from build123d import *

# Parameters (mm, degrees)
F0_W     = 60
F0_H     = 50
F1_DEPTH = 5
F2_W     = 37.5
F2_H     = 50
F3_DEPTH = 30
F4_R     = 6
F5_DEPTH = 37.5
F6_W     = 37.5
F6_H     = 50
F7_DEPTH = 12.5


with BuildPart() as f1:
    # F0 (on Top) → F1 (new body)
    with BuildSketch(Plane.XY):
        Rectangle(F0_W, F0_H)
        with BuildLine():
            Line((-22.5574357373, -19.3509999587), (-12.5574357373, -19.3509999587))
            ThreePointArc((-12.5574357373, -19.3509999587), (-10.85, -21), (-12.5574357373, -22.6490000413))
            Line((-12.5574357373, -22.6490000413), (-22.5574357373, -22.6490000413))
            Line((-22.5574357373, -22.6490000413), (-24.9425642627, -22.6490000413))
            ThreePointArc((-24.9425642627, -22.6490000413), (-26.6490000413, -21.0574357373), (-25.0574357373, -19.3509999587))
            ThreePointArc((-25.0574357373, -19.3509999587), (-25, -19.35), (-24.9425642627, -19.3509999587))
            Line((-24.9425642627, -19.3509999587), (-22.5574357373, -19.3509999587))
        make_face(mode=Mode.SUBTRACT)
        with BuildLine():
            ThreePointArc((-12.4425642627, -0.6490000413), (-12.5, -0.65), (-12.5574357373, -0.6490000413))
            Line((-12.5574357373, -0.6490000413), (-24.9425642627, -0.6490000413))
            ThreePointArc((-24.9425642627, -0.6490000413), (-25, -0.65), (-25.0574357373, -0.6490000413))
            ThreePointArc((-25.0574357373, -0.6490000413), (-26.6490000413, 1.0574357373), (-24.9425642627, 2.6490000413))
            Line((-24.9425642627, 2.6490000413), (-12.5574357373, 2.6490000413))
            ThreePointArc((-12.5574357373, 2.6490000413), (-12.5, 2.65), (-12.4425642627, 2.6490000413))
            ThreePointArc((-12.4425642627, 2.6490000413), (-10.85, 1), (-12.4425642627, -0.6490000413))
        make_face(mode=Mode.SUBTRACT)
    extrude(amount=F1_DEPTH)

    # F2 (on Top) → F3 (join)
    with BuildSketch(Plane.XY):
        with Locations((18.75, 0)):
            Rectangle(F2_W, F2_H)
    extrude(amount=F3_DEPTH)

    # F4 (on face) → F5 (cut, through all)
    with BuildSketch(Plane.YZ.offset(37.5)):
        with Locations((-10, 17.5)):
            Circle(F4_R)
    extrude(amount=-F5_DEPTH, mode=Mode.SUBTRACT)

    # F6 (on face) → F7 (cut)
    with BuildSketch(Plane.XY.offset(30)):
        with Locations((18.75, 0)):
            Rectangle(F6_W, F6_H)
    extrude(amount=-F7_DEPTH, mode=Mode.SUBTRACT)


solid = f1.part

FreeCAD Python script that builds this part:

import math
import FreeCAD as App
import Part
import Sketcher

V = App.Vector
Q = App.Units.Quantity

doc = App.newDocument("Part")
body = doc.addObject("PartDesign::Body", "Body")

# Sketch on XY plane
sketch1 = body.newObject("Sketcher::SketchObject", "Sketch")
sketch1.AttachmentSupport = (doc.getObject("XY_Plane"), [""])
sketch1.MapMode = "FlatFace"
sketch1.addGeometry(Part.LineSegment(V(-30, 25, 0), V(-30, -25, 0)), False)
sketch1.addGeometry(Part.LineSegment(V(-30, -25, 0), V(30, -25, 0)), False)
sketch1.addGeometry(Part.LineSegment(V(30, -25, 0), V(30, 25, 0)), False)
sketch1.addGeometry(Part.LineSegment(V(30, 25, 0), V(-30, 25, 0)), False)
sketch1.addGeometry(Part.LineSegment(V(-24.94, -19.35, 0), V(-12.56, -19.35, 0)), False)
sketch1.addGeometry(Part.ArcOfCircle(Part.Circle(V(-12.5, -21, 0), V(0, 0, 1), 1.65), math.radians(-92), math.radians(92)), False)
sketch1.addGeometry(Part.LineSegment(V(-12.56, -22.65, 0), V(-24.94, -22.65, 0)), False)
sketch1.addGeometry(Part.ArcOfCircle(Part.Circle(V(-25, -21, 0), V(0, 0, 1), 1.65), math.radians(92), math.radians(272)), False)
sketch1.addGeometry(Part.ArcOfCircle(Part.Circle(V(-25, -21, 0), V(0, 0, 1), 1.65), math.radians(88.01), math.radians(91.99)), False)
sketch1.addGeometry(Part.ArcOfCircle(Part.Circle(V(-12.5, 1, 0), V(0, 0, 1), 1.65), math.radians(-88), math.radians(88)), False)
sketch1.addGeometry(Part.ArcOfCircle(Part.Circle(V(-12.5, 1, 0), V(0, 0, 1), 1.65), math.radians(-91.99), math.radians(-88.01)), False)
sketch1.addGeometry(Part.LineSegment(V(-12.56, -0.65, 0), V(-24.94, -0.65, 0)), False)
sketch1.addGeometry(Part.ArcOfCircle(Part.Circle(V(-25, 1, 0), V(0, 0, 1), 1.65), math.radians(-91.99), math.radians(-88.01)), False)
sketch1.addGeometry(Part.ArcOfCircle(Part.Circle(V(-25, 1, 0), V(0, 0, 1), 1.65), math.radians(88), math.radians(268)), False)
sketch1.addGeometry(Part.LineSegment(V(-24.94, 2.65, 0), V(-12.56, 2.65, 0)), False)
sketch1.addGeometry(Part.ArcOfCircle(Part.Circle(V(-12.5, 1, 0), V(0, 0, 1), 1.65), math.radians(88.01), math.radians(91.99)), False)
sketch1.addConstraint(Sketcher.Constraint("Coincident", 0, 2, 1, 1))
sketch1.addConstraint(Sketcher.Constraint("Coincident", 1, 2, 2, 1))
sketch1.addConstraint(Sketcher.Constraint("Coincident", 2, 2, 3, 1))
sketch1.addConstraint(Sketcher.Constraint("Coincident", 3, 2, 0, 1))
sketch1.addConstraint(Sketcher.Constraint("Coincident", 4, 2, 5, 2))
sketch1.addConstraint(Sketcher.Constraint("Coincident", 5, 1, 6, 1))
sketch1.addConstraint(Sketcher.Constraint("Coincident", 6, 2, 7, 2))
sketch1.addConstraint(Sketcher.Constraint("Tangent", 7, 1, 8, 2))
sketch1.addConstraint(Sketcher.Constraint("Coincident", 8, 1, 4, 1))
sketch1.addConstraint(Sketcher.Constraint("Tangent", 9, 1, 10, 2))
sketch1.addConstraint(Sketcher.Constraint("Coincident", 10, 1, 11, 1))
sketch1.addConstraint(Sketcher.Constraint("Coincident", 11, 2, 12, 2))
sketch1.addConstraint(Sketcher.Constraint("Tangent", 12, 1, 13, 2))
sketch1.addConstraint(Sketcher.Constraint("Coincident", 13, 1, 14, 1))
sketch1.addConstraint(Sketcher.Constraint("Coincident", 14, 2, 15, 2))
sketch1.addConstraint(Sketcher.Constraint("Tangent", 15, 1, 9, 2))
sketch1.addConstraint(Sketcher.Constraint("Vertical", 0))
sketch1.addConstraint(Sketcher.Constraint("Horizontal", 1))
sketch1.addConstraint(Sketcher.Constraint("Vertical", 2))
sketch1.addConstraint(Sketcher.Constraint("Horizontal", 3))
sketch1.addConstraint(Sketcher.Constraint("Horizontal", 4))
sketch1.addConstraint(Sketcher.Constraint("Horizontal", 6))
sketch1.addConstraint(Sketcher.Constraint("Horizontal", 11))
sketch1.addConstraint(Sketcher.Constraint("Horizontal", 14))
sketch1.addConstraint(Sketcher.Constraint("Equal", 5, 7))
sketch1.addConstraint(Sketcher.Constraint("Equal", 7, 8))
sketch1.addConstraint(Sketcher.Constraint("Equal", 8, 9))
sketch1.addConstraint(Sketcher.Constraint("Equal", 9, 10))
sketch1.addConstraint(Sketcher.Constraint("Equal", 10, 12))
sketch1.addConstraint(Sketcher.Constraint("Equal", 12, 13))
sketch1.addConstraint(Sketcher.Constraint("Equal", 13, 15))
sketch1.addConstraint(Sketcher.Constraint("Symmetric", 0, 2, 2, 2, -1, 1))
sketch1.addConstraint(Sketcher.Constraint("Horizontal", 5, 3, 7, 3))
sketch1.addConstraint(Sketcher.Constraint("Horizontal", 10, 3, 12, 3))
sketch1.addConstraint(Sketcher.Constraint("Horizontal", 4, 2, 7, 1))
sketch1.addConstraint(Sketcher.Constraint("Horizontal", 9, 1, 10, 1))
sketch1.addConstraint(Sketcher.Constraint("Horizontal", 11, 2, 12, 1))
sketch1.addConstraint(Sketcher.Constraint("Horizontal", 14, 2, 15, 1))
sketch1.addConstraint(Sketcher.Constraint("Vertical", 5, 3, 9, 3))
sketch1.addConstraint(Sketcher.Constraint("Vertical", 8, 3, 12, 3))
sketch1.addConstraint(Sketcher.Constraint("Vertical", 4, 2, 5, 1))
sketch1.addConstraint(Sketcher.Constraint("Vertical", 5, 1, 10, 1))
sketch1.addConstraint(Sketcher.Constraint("Vertical", 11, 2, 13, 1))
sketch1.addConstraint(Sketcher.Constraint("DistanceX", 1, 1, 1, 2, Q("60 mm")))
sketch1.addConstraint(Sketcher.Constraint("DistanceY", 0, 2, 0, 1, Q("50 mm")))
sketch1.addConstraint(Sketcher.Constraint("Radius", 5, Q("1.65 mm")))
sketch1.addConstraint(Sketcher.Constraint("DistanceY", 5, 3, -1, 1, Q("21 mm")))
sketch1.addConstraint(Sketcher.Constraint("DistanceX", 7, 3, -1, 1, Q("25 mm")))
sketch1.addConstraint(Sketcher.Constraint("DistanceY", -1, 1, 9, 3, Q("1 mm")))
sketch1.addConstraint(Sketcher.Constraint("DistanceX", 5, 3, -1, 1, Q("12.5 mm")))
sketch1.addConstraint(Sketcher.Constraint("DistanceY", 4, 2, -1, 1, Q("19.351 mm")))
pad1 = body.newObject("PartDesign::Pad", "Pad")
pad1.Profile = sketch1
pad1.Length = 5

# Sketch on XY plane
sketch2 = body.newObject("Sketcher::SketchObject", "Sketch001")
sketch2.AttachmentSupport = (doc.getObject("XY_Plane"), [""])
sketch2.MapMode = "FlatFace"
sketch2.addGeometry(Part.LineSegment(V(0, 25, 0), V(0, -25, 0)), False)
sketch2.addGeometry(Part.LineSegment(V(0, -25, 0), V(38, -25, 0)), False)
sketch2.addGeometry(Part.LineSegment(V(38, -25, 0), V(38, 25, 0)), False)
sketch2.addGeometry(Part.LineSegment(V(38, 25, 0), V(0, 25, 0)), False)
sketch2.addConstraint(Sketcher.Constraint("Coincident", 0, 2, 1, 1))
sketch2.addConstraint(Sketcher.Constraint("Coincident", 1, 2, 2, 1))
sketch2.addConstraint(Sketcher.Constraint("Coincident", 2, 2, 3, 1))
sketch2.addConstraint(Sketcher.Constraint("Coincident", 3, 2, 0, 1))
sketch2.addConstraint(Sketcher.Constraint("Vertical", 0))
sketch2.addConstraint(Sketcher.Constraint("Horizontal", 1))
sketch2.addConstraint(Sketcher.Constraint("Vertical", 2))
sketch2.addConstraint(Sketcher.Constraint("Horizontal", 3))
sketch2.addConstraint(Sketcher.Constraint("Symmetric", 0, 2, 3, 2, -1, 1))
sketch2.addConstraint(Sketcher.Constraint("DistanceY", 0, 2, 0, 1, Q("50 mm")))
sketch2.addConstraint(Sketcher.Constraint("DistanceX", 1, 1, 1, 2, Q("37.5 mm")))
pad2 = body.newObject("PartDesign::Pad", "Pad001")
pad2.Profile = sketch2
pad2.Length = 30

# Sketch on YZ plane
sketch3 = body.newObject("Sketcher::SketchObject", "Sketch002")
sketch3.AttachmentSupport = (doc.getObject("YZ_Plane"), [""])
sketch3.MapMode = "FlatFace"
sketch3.AttachmentOffset = App.Placement(V(0, 0, 37.5), App.Rotation())
sketch3.addGeometry(Part.Circle(V(-10, 18, 0), V(0, 0, 1), 6), False)
sketch3.addConstraint(Sketcher.Constraint("Diameter", 0, Q("12 mm")))
sketch3.addConstraint(Sketcher.Constraint("DistanceX", 0, 3, -1, 1, Q("10 mm")))
sketch3.addConstraint(Sketcher.Constraint("DistanceY", -1, 1, 0, 3, Q("17.5 mm")))
pocket1 = body.newObject("PartDesign::Pocket", "Pocket")
pocket1.Profile = sketch3
pocket1.Type = "ThroughAll"

# Sketch on XY plane
sketch4 = body.newObject("Sketcher::SketchObject", "Sketch003")
sketch4.AttachmentSupport = (doc.getObject("XY_Plane"), [""])
sketch4.MapMode = "FlatFace"
sketch4.AttachmentOffset = App.Placement(V(0, 0, 30), App.Rotation())
sketch4.addGeometry(Part.LineSegment(V(0, 25, 0), V(0, -25, 0)), False)
sketch4.addGeometry(Part.LineSegment(V(0, -25, 0), V(38, -25, 0)), False)
sketch4.addGeometry(Part.LineSegment(V(38, -25, 0), V(38, 25, 0)), False)
sketch4.addGeometry(Part.LineSegment(V(38, 25, 0), V(0, 25, 0)), False)
sketch4.addConstraint(Sketcher.Constraint("Coincident", 0, 2, 1, 1))
sketch4.addConstraint(Sketcher.Constraint("Coincident", 1, 2, 2, 1))
sketch4.addConstraint(Sketcher.Constraint("Coincident", 2, 2, 3, 1))
sketch4.addConstraint(Sketcher.Constraint("Coincident", 3, 2, 0, 1))
sketch4.addConstraint(Sketcher.Constraint("Vertical", 0))
sketch4.addConstraint(Sketcher.Constraint("Horizontal", 1))
sketch4.addConstraint(Sketcher.Constraint("Vertical", 2))
sketch4.addConstraint(Sketcher.Constraint("Horizontal", 3))
sketch4.addConstraint(Sketcher.Constraint("Symmetric", 0, 2, 3, 2, -1, 1))
sketch4.addConstraint(Sketcher.Constraint("DistanceY", 0, 2, 0, 1, Q("50 mm")))
sketch4.addConstraint(Sketcher.Constraint("DistanceX", 1, 1, 1, 2, Q("37.5 mm")))
pocket2 = body.newObject("PartDesign::Pocket", "Pocket001")
pocket2.Profile = sketch4
pocket2.Length = 12.5

doc.recompute()
